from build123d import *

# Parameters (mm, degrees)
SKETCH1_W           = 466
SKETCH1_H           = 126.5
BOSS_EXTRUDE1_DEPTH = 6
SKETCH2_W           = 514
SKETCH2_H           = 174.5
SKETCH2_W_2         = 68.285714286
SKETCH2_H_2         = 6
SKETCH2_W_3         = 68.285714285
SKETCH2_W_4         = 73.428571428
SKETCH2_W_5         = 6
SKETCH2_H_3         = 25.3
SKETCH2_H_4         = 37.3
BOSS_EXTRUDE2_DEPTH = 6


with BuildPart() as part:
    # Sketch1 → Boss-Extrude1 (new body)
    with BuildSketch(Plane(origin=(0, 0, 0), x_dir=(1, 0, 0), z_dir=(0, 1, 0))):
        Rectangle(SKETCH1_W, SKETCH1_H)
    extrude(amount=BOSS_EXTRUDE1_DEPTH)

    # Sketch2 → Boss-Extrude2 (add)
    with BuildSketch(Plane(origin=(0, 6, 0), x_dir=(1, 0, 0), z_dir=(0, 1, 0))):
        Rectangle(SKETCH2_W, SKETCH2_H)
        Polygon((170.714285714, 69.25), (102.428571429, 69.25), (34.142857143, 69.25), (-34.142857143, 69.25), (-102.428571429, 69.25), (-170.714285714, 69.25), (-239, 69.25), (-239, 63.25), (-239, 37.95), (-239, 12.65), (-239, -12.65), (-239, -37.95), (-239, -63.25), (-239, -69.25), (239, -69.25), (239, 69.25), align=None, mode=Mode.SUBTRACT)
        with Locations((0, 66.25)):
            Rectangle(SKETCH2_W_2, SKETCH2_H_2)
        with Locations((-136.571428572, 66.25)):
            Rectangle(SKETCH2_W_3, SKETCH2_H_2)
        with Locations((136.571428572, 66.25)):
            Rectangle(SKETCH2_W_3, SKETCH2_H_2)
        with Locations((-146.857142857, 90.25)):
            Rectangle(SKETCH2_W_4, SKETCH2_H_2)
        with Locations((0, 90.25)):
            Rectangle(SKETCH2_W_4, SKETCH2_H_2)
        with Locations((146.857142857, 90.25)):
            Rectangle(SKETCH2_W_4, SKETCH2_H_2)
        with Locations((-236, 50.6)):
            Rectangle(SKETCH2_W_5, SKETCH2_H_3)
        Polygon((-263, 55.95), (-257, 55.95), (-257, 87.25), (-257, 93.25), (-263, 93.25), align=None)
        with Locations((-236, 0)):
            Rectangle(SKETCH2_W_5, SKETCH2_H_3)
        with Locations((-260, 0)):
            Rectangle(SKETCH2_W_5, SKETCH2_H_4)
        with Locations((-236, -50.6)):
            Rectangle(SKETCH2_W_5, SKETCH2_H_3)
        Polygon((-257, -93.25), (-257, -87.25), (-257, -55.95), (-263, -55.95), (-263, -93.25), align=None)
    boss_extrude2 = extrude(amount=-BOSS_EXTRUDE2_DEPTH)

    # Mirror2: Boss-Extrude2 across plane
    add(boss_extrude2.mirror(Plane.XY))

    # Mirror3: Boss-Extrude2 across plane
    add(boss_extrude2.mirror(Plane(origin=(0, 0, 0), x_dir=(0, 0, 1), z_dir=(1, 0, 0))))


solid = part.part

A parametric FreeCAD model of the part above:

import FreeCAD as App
import Part
import Sketcher
from FreeCAD import Vector
Q = App.Units.Quantity

doc = App.newDocument("Part")
body = doc.addObject("PartDesign::Body", "Body")

# Sketch on XZ plane
sketch1 = body.newObject("Sketcher::SketchObject", "Sketch")
sketch1.AttachmentSupport = (doc.getObject("XZ_Plane"), [""])
sketch1.MapMode = "FlatFace"
sketch1.addGeometry([
    Part.LineSegment(Vector(-233, -63, 0), Vector(-233, 63, 0)),
    Part.LineSegment(Vector(-233, 63, 0), Vector(233, 63, 0)),
    Part.LineSegment(Vector(233, 63, 0), Vector(233, -63, 0)),
    Part.LineSegment(Vector(233, -63, 0), Vector(-233, -63, 0)),
], False)
sketch1.addConstraint([
    Sketcher.Constraint("Coincident", 0, 2, 1, 1),
    Sketcher.Constraint("Coincident", 1, 2, 2, 1),
    Sketcher.Constraint("Coincident", 2, 2, 3, 1),
    Sketcher.Constraint("Coincident", 3, 2, 0, 1),
    Sketcher.Constraint("Vertical", 0),
    Sketcher.Constraint("Horizontal", 1),
    Sketcher.Constraint("Vertical", 2),
    Sketcher.Constraint("Horizontal", 3),
    Sketcher.Constraint("Symmetric", 0, 2, 2, 2, -1, 1),
    Sketcher.Constraint("DistanceX", 1, 1, 1, 2, Q("466 mm")),
    Sketcher.Constraint("DistanceY", 0, 1, 0, 2, Q("126.5 mm")),
])
pad1 = body.newObject("PartDesign::Pad", "Pad")
pad1.Profile = sketch1
pad1.Length = 6
pad1.Reversed = True

# Sketch on XZ plane
sketch2 = body.newObject("Sketcher::SketchObject", "Sketch001")
sketch2.AttachmentSupport = (doc.getObject("XZ_Plane"), [""])
sketch2.MapMode = "FlatFace"
sketch2.AttachmentOffset = App.Placement(Vector(0, 0, -6), App.Rotation())
sketch2.addGeometry([
    Part.LineSegment(Vector(-257, 19, 0), Vector(-257, 56, 0)),  # 0
    Part.LineSegment(Vector(-257, 56, 0), Vector(-263, 56, 0)),  # 1
    Part.LineSegment(Vector(-263, 56, 0), Vector(-263, 93, 0)),  # 2
    Part.LineSegment(Vector(-263, 93, 0), Vector(-257, 93, 0)),  # 3
    Part.LineSegment(Vector(-257, 93, 0), Vector(-257, 87, 0)),  # 4
    Part.LineSegment(Vector(-257, 87, 0), Vector(257, 87, 0)),  # 5
    Part.LineSegment(Vector(257, 87, 0), Vector(257, -87, 0)),  # 6
    Part.LineSegment(Vector(257, -87, 0), Vector(184, -87, 0)),  # 7
    Part.LineSegment(Vector(184, -87, 0), Vector(184, -93, 0)),  # 8
    Part.LineSegment(Vector(184, -93, 0), Vector(110, -93, 0)),  # 9
    Part.LineSegment(Vector(110, -93, 0), Vector(110, -87, 0)),  # 10
    Part.LineSegment(Vector(110, -87, 0), Vector(37, -87, 0)),  # 11
    Part.LineSegment(Vector(37, -87, 0), Vector(37, -93, 0)),  # 12
    Part.LineSegment(Vector(37, -93, 0), Vector(-37, -93, 0)),  # 13
    Part.LineSegment(Vector(-37, -93, 0), Vector(-37, -87, 0)),  # 14
    Part.LineSegment(Vector(-37, -87, 0), Vector(-110, -87, 0)),  # 15
    Part.LineSegment(Vector(-110, -87, 0), Vector(-110, -93, 0)),  # 16
    Part.LineSegment(Vector(-110, -93, 0), Vector(-184, -93, 0)),  # 17
    Part.LineSegment(Vector(-184, -93, 0), Vector(-184, -87, 0)),  # 18
    Part.LineSegment(Vector(-184, -87, 0), Vector(-257, -87, 0)),  # 19
    Part.LineSegment(Vector(-257, -87, 0), Vector(-257, -93, 0)),  # 20
    Part.LineSegment(Vector(-257, -93, 0), Vector(-263, -93, 0)),  # 21
    Part.LineSegment(Vector(-263, -93, 0), Vector(-263, -56, 0)),  # 22
    Part.LineSegment(Vector(-263, -56, 0), Vector(-257, -56, 0)),  # 23
    Part.LineSegment(Vector(-257, -56, 0), Vector(-257, -19, 0)),  # 24
    Part.LineSegment(Vector(-257, -19, 0), Vector(-263, -19, 0)),  # 25
    Part.LineSegment(Vector(-263, -19, 0), Vector(-263, 19, 0)),  # 26
    Part.LineSegment(Vector(-263, 19, 0), Vector(-257, 19, 0)),  # 27
    Part.LineSegment(Vector(-239, -69, 0), Vector(-171, -69, 0)),  # 28
    Part.LineSegment(Vector(-171, -69, 0), Vector(-171, -63, 0)),  # 29
    Part.LineSegment(Vector(-171, -63, 0), Vector(-102, -63, 0)),  # 30
    Part.LineSegment(Vector(-102, -63, 0), Vector(-102, -69, 0)),  # 31
    Part.LineSegment(Vector(-102, -69, 0), Vector(-34, -69, 0)),  # 32
    Part.LineSegment(Vector(-34, -69, 0), Vector(-34, -63, 0)),  # 33
    Part.LineSegment(Vector(-34, -63, 0), Vector(34, -63, 0)),  # 34
    Part.LineSegment(Vector(34, -63, 0), Vector(34, -69, 0)),  # 35
    Part.LineSegment(Vector(34, -69, 0), Vector(102, -69, 0)),  # 36
    Part.LineSegment(Vector(102, -69, 0), Vector(102, -63, 0)),  # 37
    Part.LineSegment(Vector(102, -63, 0), Vector(171, -63, 0)),  # 38
    Part.LineSegment(Vector(171, -63, 0), Vector(171, -69, 0)),  # 39
    Part.LineSegment(Vector(171, -69, 0), Vector(239, -69, 0)),  # 40
    Part.LineSegment(Vector(239, -69, 0), Vector(239, 69, 0)),  # 41
    Part.LineSegment(Vector(239, 69, 0), Vector(-239, 69, 0)),  # 42
    Part.LineSegment(Vector(-239, 69, 0), Vector(-239, 63, 0)),  # 43
    Part.LineSegment(Vector(-239, 63, 0), Vector(-233, 63, 0)),  # 44
    Part.LineSegment(Vector(-233, 63, 0), Vector(-233, 38, 0)),  # 45
    Part.LineSegment(Vector(-233, 38, 0), Vector(-239, 38, 0)),  # 46
    Part.LineSegment(Vector(-239, 38, 0), Vector(-239, 13, 0)),  # 47
    Part.LineSegment(Vector(-239, 13, 0), Vector(-233, 13, 0)),  # 48
    Part.LineSegment(Vector(-233, 13, 0), Vector(-233, -13, 0)),  # 49
    Part.LineSegment(Vector(-233, -13, 0), Vector(-239, -13, 0)),  # 50
    Part.LineSegment(Vector(-239, -13, 0), Vector(-239, -38, 0)),  # 51
    Part.LineSegment(Vector(-239, -38, 0), Vector(-233, -38, 0)),  # 52
    Part.LineSegment(Vector(-233, -38, 0), Vector(-233, -63, 0)),  # 53
    Part.LineSegment(Vector(-233, -63, 0), Vector(-239, -63, 0)),  # 54
    Part.LineSegment(Vector(-239, -63, 0), Vector(-239, -69, 0)),  # 55
], False)
sketch2.addConstraint([
    Sketcher.Constraint("Coincident", 0, 2, 1, 1),
    Sketcher.Constraint("Coincident", 1, 2, 2, 1),
    Sketcher.Constraint("Coincident", 2, 2, 3, 1),
    Sketcher.Constraint("Coincident", 3, 2, 4, 1),
    Sketcher.Constraint("Coincident", 4, 2, 5, 1),
    Sketcher.Constraint("Coincident", 5, 2, 6, 1),
    Sketcher.Constraint("Coincident", 6, 2, 7, 1),
    Sketcher.Constraint("Coincident", 7, 2, 8, 1),
    Sketcher.Constraint("Coincident", 8, 2, 9, 1),
    Sketcher.Constraint("Coincident", 9, 2, 10, 1),
    Sketcher.Constraint("Coincident", 10, 2, 11, 1),
    Sketcher.Constraint("Coincident", 11, 2, 12, 1),
    Sketcher.Constraint("Coincident", 12, 2, 13, 1),
    Sketcher.Constraint("Coincident", 13, 2, 14, 1),
    Sketcher.Constraint("Coincident", 14, 2, 15, 1),
    Sketcher.Constraint("Coincident", 15, 2, 16, 1),
    Sketcher.Constraint("Coincident", 16, 2, 17, 1),
    Sketcher.Constraint("Coincident", 17, 2, 18, 1),
    Sketcher.Constraint("Coincident", 18, 2, 19, 1),
    Sketcher.Constraint("Coincident", 19, 2, 20, 1),
    Sketcher.Constraint("Coincident", 20, 2, 21, 1),
    Sketcher.Constraint("Coincident", 21, 2, 22, 1),
    Sketcher.Constraint("Coincident", 22, 2, 23, 1),
    Sketcher.Constraint("Coincident", 23, 2, 24, 1),
    Sketcher.Constraint("Coincident", 24, 2, 25, 1),
    Sketcher.Constraint("Coincident", 25, 2, 26, 1),
    Sketcher.Constraint("Coincident", 26, 2, 27, 1),
    Sketcher.Constraint("Coincident", 27, 2, 0, 1),
    Sketcher.Constraint("Coincident", 28, 2, 29, 1),
    Sketcher.Constraint("Coincident", 29, 2, 30, 1),
    Sketcher.Constraint("Coincident", 30, 2, 31, 1),
    Sketcher.Constraint("Coincident", 31, 2, 32, 1),
    Sketcher.Constraint("Coincident", 32, 2, 33, 1),
    Sketcher.Constraint("Coincident", 33, 2, 34, 1),
    Sketcher.Constraint("Coincident", 34, 2, 35, 1),
    Sketcher.Constraint("Coincident", 35, 2, 36, 1),
    Sketcher.Constraint("Coincident", 36, 2, 37, 1),
    Sketcher.Constraint("Coincident", 37, 2, 38, 1),
    Sketcher.Constraint("Coincident", 38, 2, 39, 1),
    Sketcher.Constraint("Coincident", 39, 2, 40, 1),
    Sketcher.Constraint("Coincident", 40, 2, 41, 1),
    Sketcher.Constraint("Coincident", 41, 2, 42, 1),
    Sketcher.Constraint("Coincident", 42, 2, 43, 1),
    Sketcher.Constraint("Coincident", 43, 2, 44, 1),
    Sketcher.Constraint("Coincident", 44, 2, 45, 1),
    Sketcher.Constraint("Coincident", 45, 2, 46, 1),
    Sketcher.Constraint("Coincident", 46, 2, 47, 1),
    Sketcher.Constraint("Coincident", 47, 2, 48, 1),
    Sketcher.Constraint("Coincident", 48, 2, 49, 1),
    Sketcher.Constraint("Coincident", 49, 2, 50, 1),
    Sketcher.Constraint("Coincident", 50, 2, 51, 1),
    Sketcher.Constraint("Coincident", 51, 2, 52, 1),
    Sketcher.Constraint("Coincident", 52, 2, 53, 1),
    Sketcher.Constraint("Coincident", 53, 2, 54, 1),
    Sketcher.Constraint("Coincident", 54, 2, 55, 1),
    Sketcher.Constraint("Coincident", 55, 2, 28, 1),
    Sketcher.Constraint("Vertical", 0),
    Sketcher.Constraint("Horizontal", 1),
    Sketcher.Constraint("Vertical", 2),
    Sketcher.Constraint("Horizontal", 3),
    Sketcher.Constraint("Vertical", 4),
    Sketcher.Constraint("Horizontal", 5),
    Sketcher.Constraint("Vertical", 6),
    Sketcher.Constraint("Horizontal", 7),
    Sketcher.Constraint("Vertical", 8),
    Sketcher.Constraint("Horizontal", 9),
    Sketcher.Constraint("Vertical", 10),
    Sketcher.Constraint("Horizontal", 11),
    Sketcher.Constraint("Vertical", 12),
    Sketcher.Constraint("Horizontal", 13),
    Sketcher.Constraint("Vertical", 14),
    Sketcher.Constraint("Horizontal", 15),
    Sketcher.Constraint("Vertical", 16),
    Sketcher.Constraint("Horizontal", 17),
    Sketcher.Constraint("Vertical", 18),
    Sketcher.Constraint("Horizontal", 19),
    Sketcher.Constraint("Vertical", 20),
    Sketcher.Constraint("Horizontal", 21),
    Sketcher.Constraint("Vertical", 22),
    Sketcher.Constraint("Horizontal", 23),
    Sketcher.Constraint("Vertical", 24),
    Sketcher.Constraint("Horizontal", 25),
    Sketcher.Constraint("Vertical", 26),
    Sketcher.Constraint("Horizontal", 27),
    Sketcher.Constraint("Horizontal", 28),
    Sketcher.Constraint("Vertical", 29),
    Sketcher.Constraint("Horizontal", 30),
    Sketcher.Constraint("Vertical", 31),
    Sketcher.Constraint("Horizontal", 32),
    Sketcher.Constraint("Vertical", 33),
    Sketcher.Constraint("Horizontal", 34),
    Sketcher.Constraint("Vertical", 35),
    Sketcher.Constraint("Horizontal", 36),
    Sketcher.Constraint("Vertical", 37),
    Sketcher.Constraint("Horizontal", 38),
    Sketcher.Constraint("Vertical", 39),
    Sketcher.Constraint("Horizontal", 40),
    Sketcher.Constraint("Vertical", 41),
    Sketcher.Constraint("Horizontal", 42),
    Sketcher.Constraint("Vertical", 43),
    Sketcher.Constraint("Horizontal", 44),
    Sketcher.Constraint("Vertical", 45),
    Sketcher.Constraint("Horizontal", 46),
    Sketcher.Constraint("Vertical", 47),
    Sketcher.Constraint("Horizontal", 48),
    Sketcher.Constraint("Vertical", 49),
    Sketcher.Constraint("Horizontal", 50),
    Sketcher.Constraint("Vertical", 51),
    Sketcher.Constraint("Horizontal", 52),
    Sketcher.Constraint("Vertical", 53),
    Sketcher.Constraint("Horizontal", 54),
    Sketcher.Constraint("Vertical", 55),
    Sketcher.Constraint("Symmetric", 4, 2, 6, 2, -1, 1),
    Sketcher.Constraint("Symmetric", 5, 2, 19, 2, -1, 1),
    Sketcher.Constraint("Symmetric", 40, 2, 42, 2, -1, 1),
    Sketcher.Constraint("Symmetric", 41, 2, 55, 2, -1, 1),
    Sketcher.Constraint("Symmetric", 11, 2, 14, 2, -2),
    Sketcher.Constraint("Symmetric", 9, 2, 16, 2, -2),
    Sketcher.Constraint("Symmetric", 32, 2, 35, 2, -2),
    Sketcher.Constraint("Symmetric", 30, 2, 37, 2, -2),
    Sketcher.Constraint("Symmetric", 2, 2, 21, 2, -1),
    Sketcher.Constraint("Symmetric", 0, 2, 23, 2, -1),
    Sketcher.Constraint("Symmetric", 47, 2, 50, 2, -1),
    Sketcher.Constraint("Symmetric", 45, 2, 52, 2, -1),
    Sketcher.Constraint("Horizontal", 7, 2, 10, 2),
    Sketcher.Constraint("Horizontal", 9, 2, 12, 2),
    Sketcher.Constraint("Horizontal", 17, 2, 20, 2),
    Sketcher.Constraint("Horizontal", 28, 2, 31, 2),
    Sketcher.Constraint("Horizontal", 30, 2, 33, 2),
    Sketcher.Constraint("Horizontal", 38, 2, 53, 2),
    Sketcher.Constraint("Vertical", 0, 2, 3, 2),
    Sketcher.Constraint("Vertical", 22, 2, 25, 2),
    Sketcher.Constraint("Vertical", 43, 2, 46, 2),
    Sketcher.Constraint("Vertical", 45, 2, 48, 2),
    Sketcher.Constraint("Equal", 7, 9),
    Sketcher.Constraint("Equal", 9, 11),
    Sketcher.Constraint("Equal", 11, 13),
    Sketcher.Constraint("Equal", 15, 17),
    Sketcher.Constraint("Equal", 28, 30),
    Sketcher.Constraint("Equal", 30, 32),
    Sketcher.Constraint("Equal", 32, 34),
    Sketcher.Constraint("Equal", 36, 38),
    Sketcher.Constraint("Equal", 27, 44),
    Sketcher.Constraint("Equal", 0, 2),
    Sketcher.Constraint("Equal", 54, 4),
    Sketcher.Constraint("Equal", 22, 24),
    Sketcher.Constraint("Equal", 24, 26),
    Sketcher.Constraint("Equal", 20, 29),
    Sketcher.Constraint("Equal", 39, 43),
    Sketcher.Constraint("Equal", 45, 47),
    Sketcher.Constraint("Equal", 47, 49),
    Sketcher.Constraint("DistanceX", 1, 2, 1, 1, Q("6 mm")),
    Sketcher.Constraint("DistanceX", 5, 1, 5, 2, Q("514 mm")),
    Sketcher.Constraint("DistanceX", 42, 2, 42, 1, Q("478 mm")),
    Sketcher.Constraint("DistanceY", 0, 1, 0, 2, Q("37.3 mm")),
    Sketcher.Constraint("DistanceY", 41, 1, 41, 2, Q("138.5 mm")),
])
pad2 = body.newObject("PartDesign::Pad", "Pad001")
pad2.Profile = sketch2
pad2.Length = 6
doc.recompute()

mirrored = body.newObject("PartDesign::Mirrored", "Mirrored")
mirrored.Originals = [pad2]
mirrored.MirrorPlane = (doc.getObject("XY_Plane"), [""])
body.Tip = mirrored
doc.recompute()

mirrored2 = body.newObject("PartDesign::Mirrored", "Mirrored001")
mirrored2.Originals = [pad2]
mirrored2.MirrorPlane = (doc.getObject("YZ_Plane"), [""])
body.Tip = mirrored2

doc.recompute()
